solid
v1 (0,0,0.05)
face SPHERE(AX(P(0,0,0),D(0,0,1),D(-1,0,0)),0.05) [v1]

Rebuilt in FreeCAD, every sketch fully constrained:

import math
import FreeCAD as App
import Part
import Sketcher
from FreeCAD import Vector

doc = App.newDocument("Part")
body = doc.addObject("PartDesign::Body", "Body")

# Sketch on XZ plane
sketch1 = body.newObject("Sketcher::SketchObject", "Sketch")
sketch1.AttachmentSupport = (doc.getObject("XZ_Plane"), [""])
sketch1.MapMode = "FlatFace"
sketch1.addGeometry(Part.LineSegment(Vector(0, -0.05, 0), Vector(0, 0.05, 0)), False)
sketch1.addGeometry(Part.ArcOfCircle(Part.Circle(Vector(0, 0, 0), Vector(0, 0, 1), 0.05), math.radians(-90), math.radians(90)), False)
sketch1.addConstraint(Sketcher.Constraint("Coincident", 0, 1, 1, 1))
sketch1.addConstraint(Sketcher.Constraint("Coincident", 1, 2, 0, 2))
sketch1.addConstraint(Sketcher.Constraint("Vertical", 0))
sketch1.addConstraint(Sketcher.Constraint("Coincident", 1, 3, -1, 1))
sketch1.addConstraint(Sketcher.Constraint("PointOnObject", 0, 1, -2))
sketch1.addConstraint(Sketcher.Constraint("Radius", 1, 0.05))
revolution = body.newObject("PartDesign::Revolution", "Revolution")
revolution.Profile = sketch1
revolution.ReferenceAxis = (sketch1, ["V_Axis"])
revolution.Angle = 360

doc.recompute()
